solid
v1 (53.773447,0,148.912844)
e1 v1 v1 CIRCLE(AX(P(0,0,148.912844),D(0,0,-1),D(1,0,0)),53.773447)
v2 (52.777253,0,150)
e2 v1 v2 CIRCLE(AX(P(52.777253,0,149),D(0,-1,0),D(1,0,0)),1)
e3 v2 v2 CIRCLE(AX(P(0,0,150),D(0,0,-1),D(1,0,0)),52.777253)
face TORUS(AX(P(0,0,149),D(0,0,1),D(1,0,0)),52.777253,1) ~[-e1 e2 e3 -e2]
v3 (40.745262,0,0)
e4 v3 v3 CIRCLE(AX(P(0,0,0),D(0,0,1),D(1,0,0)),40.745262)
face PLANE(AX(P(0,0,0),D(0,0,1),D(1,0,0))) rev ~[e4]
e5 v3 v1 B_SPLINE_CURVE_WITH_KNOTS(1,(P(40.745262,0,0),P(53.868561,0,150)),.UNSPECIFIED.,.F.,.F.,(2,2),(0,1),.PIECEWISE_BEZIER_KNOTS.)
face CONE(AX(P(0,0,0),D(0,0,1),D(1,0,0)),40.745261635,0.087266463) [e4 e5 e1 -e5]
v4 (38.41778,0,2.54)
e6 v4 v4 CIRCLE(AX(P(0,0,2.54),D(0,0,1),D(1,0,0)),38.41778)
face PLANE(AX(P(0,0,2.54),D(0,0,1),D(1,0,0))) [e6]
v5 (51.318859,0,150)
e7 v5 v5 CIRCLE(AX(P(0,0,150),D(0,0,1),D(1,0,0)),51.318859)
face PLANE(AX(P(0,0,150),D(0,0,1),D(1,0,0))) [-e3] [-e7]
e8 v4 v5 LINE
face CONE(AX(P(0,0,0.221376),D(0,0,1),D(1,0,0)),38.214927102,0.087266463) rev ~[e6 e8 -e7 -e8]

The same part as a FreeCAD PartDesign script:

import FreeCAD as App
import Part
import Sketcher


def edges_at(feature, points):
    """Names of the edges that pass closest to the given points."""
    edges = feature.Shape.Edges
    near = lambda p: min(range(len(edges)), key=lambda i: edges[i].distToShape(Part.Vertex(*p))[0])
    return sorted({f"Edge{near(p) + 1}" for p in points})


def faces_at(feature, points):
    """Names of the faces that lie closest to the given points."""
    faces = feature.Shape.Faces
    near = lambda p: min(range(len(faces)), key=lambda i: faces[i].distToShape(Part.Vertex(*p))[0])
    return sorted({f"Face{near(p) + 1}" for p in points})

doc = App.newDocument("Part")
body = doc.addObject("PartDesign::Body", "Body")

sketch1 = body.newObject("Sketcher::SketchObject", "Sketch")
sketch1.AttachmentSupport = (doc.getObject("XY_Plane"), [""])
sketch1.MapMode = "FlatFace"
sketch1.addGeometry(Part.Circle(App.Vector(0, 0, 0), App.Vector(0, 0, 1), 41), False)
sketch1.addConstraint([
    Sketcher.Constraint("Coincident", 0, 3, -1, 1),
    Sketcher.Constraint("Diameter", 0, 81.490523),
])
pad1 = body.newObject("PartDesign::Pad", "Pad")
pad1.Profile = sketch1
pad1.Length = 150
pad1.TaperAngle = 5
doc.recompute()

thickness = body.newObject("PartDesign::Thickness", "Thickness")
thickness.Base = (pad1, faces_at(pad1, [(0, 0, 150)]))
thickness.Value = 2.54
thickness.Reversed = True
thickness.Join = "Intersection"
doc.recompute()

fillet = body.newObject("PartDesign::Fillet", "Fillet")
fillet.Base = (thickness, edges_at(thickness, [(-53.869, 0, 150)]))
fillet.Radius = 1

doc.recompute()
